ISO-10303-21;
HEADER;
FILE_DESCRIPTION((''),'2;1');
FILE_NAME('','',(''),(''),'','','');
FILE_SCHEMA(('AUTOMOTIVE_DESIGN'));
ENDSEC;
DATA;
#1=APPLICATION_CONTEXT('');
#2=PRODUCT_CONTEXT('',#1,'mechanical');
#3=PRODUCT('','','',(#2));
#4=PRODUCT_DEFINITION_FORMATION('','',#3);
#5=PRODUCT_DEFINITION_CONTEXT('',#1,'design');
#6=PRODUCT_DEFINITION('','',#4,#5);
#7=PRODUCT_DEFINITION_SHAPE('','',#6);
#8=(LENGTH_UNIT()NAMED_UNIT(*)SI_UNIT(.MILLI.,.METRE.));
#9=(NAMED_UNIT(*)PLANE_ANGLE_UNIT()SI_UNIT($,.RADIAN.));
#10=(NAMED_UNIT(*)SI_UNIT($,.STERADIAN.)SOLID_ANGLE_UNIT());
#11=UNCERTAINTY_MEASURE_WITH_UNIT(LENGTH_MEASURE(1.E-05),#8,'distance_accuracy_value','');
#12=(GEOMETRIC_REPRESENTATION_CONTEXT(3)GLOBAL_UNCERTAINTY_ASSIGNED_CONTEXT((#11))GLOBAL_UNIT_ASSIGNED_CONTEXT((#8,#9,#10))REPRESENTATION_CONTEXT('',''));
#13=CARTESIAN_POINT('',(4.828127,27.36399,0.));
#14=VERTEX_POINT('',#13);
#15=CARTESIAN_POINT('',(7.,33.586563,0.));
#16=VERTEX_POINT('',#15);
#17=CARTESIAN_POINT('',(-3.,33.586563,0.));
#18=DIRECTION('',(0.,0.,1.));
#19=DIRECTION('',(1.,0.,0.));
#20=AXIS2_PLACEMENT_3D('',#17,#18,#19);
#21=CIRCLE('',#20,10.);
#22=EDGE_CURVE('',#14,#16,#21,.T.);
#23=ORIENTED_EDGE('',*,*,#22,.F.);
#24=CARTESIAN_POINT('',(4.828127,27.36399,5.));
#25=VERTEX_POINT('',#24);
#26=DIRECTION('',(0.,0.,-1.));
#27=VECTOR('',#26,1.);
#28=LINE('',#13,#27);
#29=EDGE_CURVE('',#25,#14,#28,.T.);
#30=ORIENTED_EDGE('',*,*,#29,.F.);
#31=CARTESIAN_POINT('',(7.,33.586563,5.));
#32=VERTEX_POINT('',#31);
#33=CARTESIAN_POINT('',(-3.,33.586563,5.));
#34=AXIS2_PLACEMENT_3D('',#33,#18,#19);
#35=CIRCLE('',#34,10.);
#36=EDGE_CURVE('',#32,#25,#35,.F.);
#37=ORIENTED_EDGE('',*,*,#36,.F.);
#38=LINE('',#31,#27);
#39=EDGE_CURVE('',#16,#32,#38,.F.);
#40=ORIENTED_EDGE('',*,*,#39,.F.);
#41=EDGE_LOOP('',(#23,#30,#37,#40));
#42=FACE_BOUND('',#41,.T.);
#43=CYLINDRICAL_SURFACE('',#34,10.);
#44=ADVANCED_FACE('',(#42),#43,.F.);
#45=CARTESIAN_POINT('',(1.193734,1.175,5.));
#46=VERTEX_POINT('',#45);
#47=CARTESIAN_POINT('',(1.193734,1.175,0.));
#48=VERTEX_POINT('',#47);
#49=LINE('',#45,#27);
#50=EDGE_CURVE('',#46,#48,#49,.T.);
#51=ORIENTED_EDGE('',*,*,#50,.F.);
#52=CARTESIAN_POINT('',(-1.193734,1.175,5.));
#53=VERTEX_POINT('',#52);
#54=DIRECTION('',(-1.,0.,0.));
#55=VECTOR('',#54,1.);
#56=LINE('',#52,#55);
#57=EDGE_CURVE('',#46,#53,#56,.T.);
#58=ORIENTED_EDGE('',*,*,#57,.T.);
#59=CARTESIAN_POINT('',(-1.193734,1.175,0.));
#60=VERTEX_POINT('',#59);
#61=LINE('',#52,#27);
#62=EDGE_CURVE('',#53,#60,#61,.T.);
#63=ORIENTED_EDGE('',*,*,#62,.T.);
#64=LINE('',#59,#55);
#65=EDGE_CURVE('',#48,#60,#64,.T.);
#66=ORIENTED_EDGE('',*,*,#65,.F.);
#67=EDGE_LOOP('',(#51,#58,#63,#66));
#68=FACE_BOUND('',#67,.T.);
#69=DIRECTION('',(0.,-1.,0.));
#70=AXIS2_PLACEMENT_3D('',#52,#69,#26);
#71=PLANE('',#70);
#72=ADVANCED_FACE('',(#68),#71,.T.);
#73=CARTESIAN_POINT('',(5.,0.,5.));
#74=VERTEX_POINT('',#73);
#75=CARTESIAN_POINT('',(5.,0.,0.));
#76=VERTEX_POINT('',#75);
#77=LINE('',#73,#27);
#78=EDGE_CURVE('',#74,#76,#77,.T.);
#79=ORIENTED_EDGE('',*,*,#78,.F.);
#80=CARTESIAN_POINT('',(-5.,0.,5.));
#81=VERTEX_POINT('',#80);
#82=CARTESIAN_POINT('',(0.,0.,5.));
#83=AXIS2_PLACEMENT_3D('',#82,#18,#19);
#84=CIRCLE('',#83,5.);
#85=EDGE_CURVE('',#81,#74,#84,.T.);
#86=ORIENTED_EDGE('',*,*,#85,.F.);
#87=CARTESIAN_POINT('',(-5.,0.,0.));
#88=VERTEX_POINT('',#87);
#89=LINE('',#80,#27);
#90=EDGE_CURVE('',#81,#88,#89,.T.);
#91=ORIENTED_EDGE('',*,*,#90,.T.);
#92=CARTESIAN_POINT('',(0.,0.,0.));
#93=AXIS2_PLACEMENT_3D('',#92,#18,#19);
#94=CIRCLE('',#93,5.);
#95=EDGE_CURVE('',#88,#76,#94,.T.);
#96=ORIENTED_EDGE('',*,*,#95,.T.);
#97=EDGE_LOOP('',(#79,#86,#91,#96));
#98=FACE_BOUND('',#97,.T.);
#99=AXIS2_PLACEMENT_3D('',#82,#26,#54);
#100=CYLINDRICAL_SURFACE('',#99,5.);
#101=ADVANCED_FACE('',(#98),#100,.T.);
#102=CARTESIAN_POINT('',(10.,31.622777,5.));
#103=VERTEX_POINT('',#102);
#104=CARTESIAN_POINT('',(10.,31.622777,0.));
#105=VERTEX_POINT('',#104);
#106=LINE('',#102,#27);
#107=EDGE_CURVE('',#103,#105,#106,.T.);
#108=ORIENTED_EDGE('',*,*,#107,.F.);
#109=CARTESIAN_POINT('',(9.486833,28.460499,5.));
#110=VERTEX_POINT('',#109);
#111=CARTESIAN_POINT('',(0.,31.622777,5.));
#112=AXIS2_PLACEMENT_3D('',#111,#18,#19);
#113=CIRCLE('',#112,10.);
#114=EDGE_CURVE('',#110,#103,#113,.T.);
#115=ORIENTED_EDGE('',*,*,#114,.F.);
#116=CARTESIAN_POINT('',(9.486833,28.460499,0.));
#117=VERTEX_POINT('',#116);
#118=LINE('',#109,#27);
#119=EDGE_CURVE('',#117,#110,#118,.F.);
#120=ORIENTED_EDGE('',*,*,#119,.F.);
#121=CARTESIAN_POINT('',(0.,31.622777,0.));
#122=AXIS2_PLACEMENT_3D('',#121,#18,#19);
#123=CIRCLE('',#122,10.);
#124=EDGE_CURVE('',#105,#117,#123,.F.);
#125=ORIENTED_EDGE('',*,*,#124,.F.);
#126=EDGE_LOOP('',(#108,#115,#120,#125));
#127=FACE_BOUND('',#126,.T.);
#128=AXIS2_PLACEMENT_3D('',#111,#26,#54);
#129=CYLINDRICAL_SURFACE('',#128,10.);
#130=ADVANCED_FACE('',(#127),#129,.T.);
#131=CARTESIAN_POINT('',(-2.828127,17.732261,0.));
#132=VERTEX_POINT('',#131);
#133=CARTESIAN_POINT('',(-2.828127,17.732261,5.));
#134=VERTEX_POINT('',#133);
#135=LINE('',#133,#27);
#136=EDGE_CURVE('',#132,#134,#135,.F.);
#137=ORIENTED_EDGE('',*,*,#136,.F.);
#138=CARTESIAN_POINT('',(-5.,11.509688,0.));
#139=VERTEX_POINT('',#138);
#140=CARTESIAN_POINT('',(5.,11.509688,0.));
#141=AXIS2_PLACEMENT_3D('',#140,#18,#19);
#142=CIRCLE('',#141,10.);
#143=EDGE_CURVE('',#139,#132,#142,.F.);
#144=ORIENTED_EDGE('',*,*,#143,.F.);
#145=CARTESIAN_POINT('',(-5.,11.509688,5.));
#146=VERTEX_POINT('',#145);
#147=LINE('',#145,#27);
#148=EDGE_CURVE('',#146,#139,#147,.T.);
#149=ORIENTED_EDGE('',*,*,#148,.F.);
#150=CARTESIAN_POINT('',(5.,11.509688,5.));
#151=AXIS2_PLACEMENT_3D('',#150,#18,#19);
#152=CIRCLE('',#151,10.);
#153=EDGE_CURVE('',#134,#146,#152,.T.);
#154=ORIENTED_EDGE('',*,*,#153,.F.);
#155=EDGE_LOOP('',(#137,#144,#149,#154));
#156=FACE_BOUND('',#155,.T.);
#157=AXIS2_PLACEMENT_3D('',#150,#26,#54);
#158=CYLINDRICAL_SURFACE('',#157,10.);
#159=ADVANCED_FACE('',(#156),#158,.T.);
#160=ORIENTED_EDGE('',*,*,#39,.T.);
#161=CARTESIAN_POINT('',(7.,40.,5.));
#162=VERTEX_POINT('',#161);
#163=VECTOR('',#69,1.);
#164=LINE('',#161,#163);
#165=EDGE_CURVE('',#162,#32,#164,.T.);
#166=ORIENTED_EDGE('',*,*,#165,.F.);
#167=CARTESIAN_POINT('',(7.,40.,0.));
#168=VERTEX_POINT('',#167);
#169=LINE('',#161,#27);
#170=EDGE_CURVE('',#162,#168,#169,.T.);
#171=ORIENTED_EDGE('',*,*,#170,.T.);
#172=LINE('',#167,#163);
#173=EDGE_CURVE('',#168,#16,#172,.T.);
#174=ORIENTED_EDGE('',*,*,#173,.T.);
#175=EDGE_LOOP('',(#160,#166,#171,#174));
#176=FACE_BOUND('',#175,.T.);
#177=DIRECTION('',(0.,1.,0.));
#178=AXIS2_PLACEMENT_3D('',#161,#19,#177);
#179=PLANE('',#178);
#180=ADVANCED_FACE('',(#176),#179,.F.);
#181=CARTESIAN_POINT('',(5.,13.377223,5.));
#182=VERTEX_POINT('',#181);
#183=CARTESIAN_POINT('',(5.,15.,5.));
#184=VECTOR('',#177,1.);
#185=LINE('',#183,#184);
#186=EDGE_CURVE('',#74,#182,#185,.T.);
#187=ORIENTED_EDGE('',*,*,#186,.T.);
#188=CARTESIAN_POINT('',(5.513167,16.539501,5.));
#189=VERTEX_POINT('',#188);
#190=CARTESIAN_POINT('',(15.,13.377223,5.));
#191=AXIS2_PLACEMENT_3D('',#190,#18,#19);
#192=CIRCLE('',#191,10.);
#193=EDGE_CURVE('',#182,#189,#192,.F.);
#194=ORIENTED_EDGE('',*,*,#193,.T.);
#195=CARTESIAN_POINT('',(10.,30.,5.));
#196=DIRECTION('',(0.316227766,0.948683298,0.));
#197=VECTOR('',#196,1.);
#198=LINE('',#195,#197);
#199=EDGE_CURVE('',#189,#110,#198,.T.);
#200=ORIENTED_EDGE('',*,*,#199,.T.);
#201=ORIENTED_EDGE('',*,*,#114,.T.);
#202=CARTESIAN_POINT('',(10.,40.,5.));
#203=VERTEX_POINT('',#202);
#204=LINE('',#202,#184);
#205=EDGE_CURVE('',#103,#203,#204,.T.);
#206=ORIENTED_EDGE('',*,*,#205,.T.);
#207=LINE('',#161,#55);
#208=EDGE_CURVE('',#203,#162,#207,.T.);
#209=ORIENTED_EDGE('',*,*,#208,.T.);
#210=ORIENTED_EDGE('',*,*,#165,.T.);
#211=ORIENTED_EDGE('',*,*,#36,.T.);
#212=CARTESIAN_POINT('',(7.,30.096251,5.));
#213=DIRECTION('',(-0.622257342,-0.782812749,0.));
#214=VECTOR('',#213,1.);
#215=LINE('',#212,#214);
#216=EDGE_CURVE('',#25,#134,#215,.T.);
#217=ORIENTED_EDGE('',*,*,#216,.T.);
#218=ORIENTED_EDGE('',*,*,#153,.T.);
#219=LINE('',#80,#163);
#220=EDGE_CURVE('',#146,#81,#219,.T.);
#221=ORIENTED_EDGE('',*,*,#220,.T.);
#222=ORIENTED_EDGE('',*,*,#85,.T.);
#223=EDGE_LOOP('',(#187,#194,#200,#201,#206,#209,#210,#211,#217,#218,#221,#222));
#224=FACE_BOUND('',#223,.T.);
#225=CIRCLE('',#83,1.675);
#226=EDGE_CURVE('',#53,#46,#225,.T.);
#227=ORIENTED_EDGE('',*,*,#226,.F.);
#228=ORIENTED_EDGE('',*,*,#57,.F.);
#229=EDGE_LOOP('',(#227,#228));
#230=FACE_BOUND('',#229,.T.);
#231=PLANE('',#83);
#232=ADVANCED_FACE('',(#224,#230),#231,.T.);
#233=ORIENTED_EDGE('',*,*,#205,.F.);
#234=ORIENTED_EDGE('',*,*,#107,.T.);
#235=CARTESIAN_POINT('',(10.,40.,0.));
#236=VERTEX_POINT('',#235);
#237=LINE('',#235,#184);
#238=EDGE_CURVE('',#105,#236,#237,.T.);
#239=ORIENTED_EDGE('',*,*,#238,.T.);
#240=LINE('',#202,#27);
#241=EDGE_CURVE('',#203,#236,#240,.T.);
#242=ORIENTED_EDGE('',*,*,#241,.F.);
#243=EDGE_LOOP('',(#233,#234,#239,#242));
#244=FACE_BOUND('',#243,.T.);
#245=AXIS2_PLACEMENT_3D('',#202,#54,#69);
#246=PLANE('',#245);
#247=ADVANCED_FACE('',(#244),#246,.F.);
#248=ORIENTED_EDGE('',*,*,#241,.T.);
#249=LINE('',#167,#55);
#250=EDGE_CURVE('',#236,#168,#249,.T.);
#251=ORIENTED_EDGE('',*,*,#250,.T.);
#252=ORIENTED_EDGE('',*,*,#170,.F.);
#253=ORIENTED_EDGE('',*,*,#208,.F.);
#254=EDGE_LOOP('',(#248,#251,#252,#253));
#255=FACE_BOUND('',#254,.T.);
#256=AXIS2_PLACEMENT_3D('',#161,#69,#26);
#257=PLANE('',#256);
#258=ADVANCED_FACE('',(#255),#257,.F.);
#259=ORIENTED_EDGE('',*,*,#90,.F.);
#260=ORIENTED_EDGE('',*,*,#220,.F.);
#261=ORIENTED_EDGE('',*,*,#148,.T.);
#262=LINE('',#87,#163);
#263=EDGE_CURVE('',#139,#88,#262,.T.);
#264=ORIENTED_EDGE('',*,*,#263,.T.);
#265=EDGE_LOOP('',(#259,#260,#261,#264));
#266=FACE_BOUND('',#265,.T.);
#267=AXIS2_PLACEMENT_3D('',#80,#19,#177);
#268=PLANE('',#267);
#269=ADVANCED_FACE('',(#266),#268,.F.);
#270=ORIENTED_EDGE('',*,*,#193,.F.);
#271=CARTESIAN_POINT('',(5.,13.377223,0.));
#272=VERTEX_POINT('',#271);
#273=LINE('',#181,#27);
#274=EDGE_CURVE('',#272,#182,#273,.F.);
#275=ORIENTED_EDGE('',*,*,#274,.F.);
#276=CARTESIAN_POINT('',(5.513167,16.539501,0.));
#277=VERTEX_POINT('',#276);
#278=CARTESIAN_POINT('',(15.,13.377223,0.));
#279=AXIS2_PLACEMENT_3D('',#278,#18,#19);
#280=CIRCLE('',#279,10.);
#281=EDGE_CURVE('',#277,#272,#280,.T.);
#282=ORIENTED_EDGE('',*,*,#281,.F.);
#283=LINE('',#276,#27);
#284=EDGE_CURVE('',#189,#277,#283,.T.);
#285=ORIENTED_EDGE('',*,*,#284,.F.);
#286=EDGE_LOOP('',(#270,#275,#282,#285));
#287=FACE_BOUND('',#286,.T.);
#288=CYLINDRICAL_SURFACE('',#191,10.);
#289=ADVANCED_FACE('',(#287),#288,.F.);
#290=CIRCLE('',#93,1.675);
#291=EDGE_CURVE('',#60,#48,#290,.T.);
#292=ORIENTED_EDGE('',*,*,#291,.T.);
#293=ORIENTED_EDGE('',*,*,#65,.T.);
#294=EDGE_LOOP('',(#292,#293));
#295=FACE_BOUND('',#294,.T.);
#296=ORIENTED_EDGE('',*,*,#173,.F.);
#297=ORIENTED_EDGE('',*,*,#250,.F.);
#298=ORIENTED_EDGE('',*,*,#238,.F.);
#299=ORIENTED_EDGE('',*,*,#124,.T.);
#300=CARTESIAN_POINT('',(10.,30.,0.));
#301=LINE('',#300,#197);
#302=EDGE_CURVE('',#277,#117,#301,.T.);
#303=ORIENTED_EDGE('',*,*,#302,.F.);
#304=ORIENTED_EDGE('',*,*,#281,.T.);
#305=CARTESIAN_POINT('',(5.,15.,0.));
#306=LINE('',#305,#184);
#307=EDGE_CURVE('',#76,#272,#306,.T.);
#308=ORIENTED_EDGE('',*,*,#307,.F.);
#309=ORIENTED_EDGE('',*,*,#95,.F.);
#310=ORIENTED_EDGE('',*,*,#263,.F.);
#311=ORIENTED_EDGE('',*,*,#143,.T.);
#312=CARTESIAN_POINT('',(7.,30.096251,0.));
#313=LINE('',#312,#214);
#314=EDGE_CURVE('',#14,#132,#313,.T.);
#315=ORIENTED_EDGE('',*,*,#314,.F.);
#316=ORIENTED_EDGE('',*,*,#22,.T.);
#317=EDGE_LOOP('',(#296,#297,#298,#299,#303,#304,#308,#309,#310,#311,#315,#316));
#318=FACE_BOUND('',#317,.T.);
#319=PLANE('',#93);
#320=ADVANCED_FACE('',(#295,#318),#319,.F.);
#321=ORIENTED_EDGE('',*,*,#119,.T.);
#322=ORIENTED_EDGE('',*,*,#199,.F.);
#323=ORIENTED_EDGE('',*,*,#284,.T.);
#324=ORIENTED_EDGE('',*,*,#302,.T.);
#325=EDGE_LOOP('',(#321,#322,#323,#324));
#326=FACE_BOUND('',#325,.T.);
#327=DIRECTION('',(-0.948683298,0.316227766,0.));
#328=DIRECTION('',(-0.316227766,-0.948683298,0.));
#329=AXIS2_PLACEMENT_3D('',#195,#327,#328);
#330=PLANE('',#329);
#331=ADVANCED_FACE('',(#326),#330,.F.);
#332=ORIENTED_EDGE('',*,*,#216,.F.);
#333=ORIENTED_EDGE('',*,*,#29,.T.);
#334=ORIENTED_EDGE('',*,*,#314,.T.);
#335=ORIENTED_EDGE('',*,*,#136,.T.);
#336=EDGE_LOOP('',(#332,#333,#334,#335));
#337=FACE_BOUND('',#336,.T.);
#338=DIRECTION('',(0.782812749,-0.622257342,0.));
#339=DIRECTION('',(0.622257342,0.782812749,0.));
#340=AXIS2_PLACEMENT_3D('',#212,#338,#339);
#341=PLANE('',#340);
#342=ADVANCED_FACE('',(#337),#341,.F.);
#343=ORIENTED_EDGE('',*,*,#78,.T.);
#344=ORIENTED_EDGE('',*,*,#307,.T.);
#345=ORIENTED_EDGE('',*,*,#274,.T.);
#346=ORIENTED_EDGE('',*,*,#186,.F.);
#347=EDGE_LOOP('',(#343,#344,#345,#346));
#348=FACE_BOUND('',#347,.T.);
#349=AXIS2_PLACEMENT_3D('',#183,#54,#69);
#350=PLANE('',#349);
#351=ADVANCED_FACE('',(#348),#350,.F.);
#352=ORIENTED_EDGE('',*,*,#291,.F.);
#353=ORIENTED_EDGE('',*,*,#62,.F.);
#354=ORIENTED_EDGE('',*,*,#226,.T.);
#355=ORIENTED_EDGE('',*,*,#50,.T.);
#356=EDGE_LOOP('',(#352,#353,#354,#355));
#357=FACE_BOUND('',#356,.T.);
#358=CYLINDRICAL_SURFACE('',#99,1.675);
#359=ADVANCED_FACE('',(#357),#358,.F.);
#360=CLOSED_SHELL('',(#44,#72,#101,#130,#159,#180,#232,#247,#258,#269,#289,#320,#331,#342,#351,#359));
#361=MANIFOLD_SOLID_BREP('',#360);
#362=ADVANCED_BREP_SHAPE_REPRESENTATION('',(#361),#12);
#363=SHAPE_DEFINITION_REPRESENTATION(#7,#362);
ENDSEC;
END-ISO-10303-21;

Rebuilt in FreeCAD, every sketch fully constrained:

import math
import FreeCAD as App
import Part
import Sketcher
Q = App.Units.Quantity


def edges_at(feature, points):
    """Names of the edges that pass closest to the given points."""
    edges = feature.Shape.Edges
    near = lambda p: min(range(len(edges)), key=lambda i: edges[i].distToShape(Part.Vertex(*p))[0])
    return sorted({f"Edge{near(p) + 1}" for p in points})

doc = App.newDocument("Part")
body = doc.addObject("PartDesign::Body", "Body")

sketch1 = body.newObject("Sketcher::SketchObject", "Sketch")
sketch1.AttachmentSupport = (doc.getObject("XY_Plane"), [""])
sketch1.MapMode = "FlatFace"
sketch1.addGeometry([
    Part.LineSegment(App.Vector(-5, 15, 0), App.Vector(-5, 0, 0)),
    Part.ArcOfCircle(Part.Circle(App.Vector(0, 0, 0), App.Vector(0, 0, 1), 5), math.radians(180), math.radians(360)),
    Part.LineSegment(App.Vector(5, 0, 0), App.Vector(5, 15, 0)),
    Part.LineSegment(App.Vector(5, 15, 0), App.Vector(10, 30, 0)),
    Part.LineSegment(App.Vector(10, 30, 0), App.Vector(10, 40, 0)),
    Part.LineSegment(App.Vector(10, 40, 0), App.Vector(7, 40, 0)),
    Part.LineSegment(App.Vector(7, 40, 0), App.Vector(7, 30.096251, 0)),
    Part.LineSegment(App.Vector(7, 30.096251, 0), App.Vector(-5, 15, 0)),
    Part.LineSegment(App.Vector(-1.193734, 1.175, 0), App.Vector(1.193734, 1.175, 0)),
    Part.ArcOfCircle(Part.Circle(App.Vector(0, 0, 0), App.Vector(0, 0, 1), 1.675), math.radians(135.453127), math.radians(404.546873)),
], False)
sketch1.addConstraint([
    Sketcher.Constraint("Tangent", 0, 2, 1, 1),
    Sketcher.Constraint("Tangent", 1, 2, 2, 1),
    Sketcher.Constraint("Coincident", 2, 2, 3, 1),
    Sketcher.Constraint("Coincident", 3, 2, 4, 1),
    Sketcher.Constraint("Coincident", 4, 2, 5, 1),
    Sketcher.Constraint("Coincident", 5, 2, 6, 1),
    Sketcher.Constraint("Coincident", 6, 2, 7, 1),
    Sketcher.Constraint("Coincident", 7, 2, 0, 1),
    Sketcher.Constraint("Coincident", 8, 1, 9, 1),
    Sketcher.Constraint("Coincident", 9, 2, 8, 2),
    Sketcher.Constraint("Vertical", 0),
    Sketcher.Constraint("Vertical", 2),
    Sketcher.Constraint("Vertical", 4),
    Sketcher.Constraint("Horizontal", 5),
    Sketcher.Constraint("Vertical", 6),
    Sketcher.Constraint("Horizontal", 8),
    Sketcher.Constraint("Coincident", 1, 3, -1, 1),
    Sketcher.Constraint("Coincident", 9, 3, -1, 1),
    Sketcher.Constraint("Horizontal", 2, 2, 7, 2),
    Sketcher.Constraint("Radius", 1, Q("5 mm")),
    Sketcher.Constraint("DistanceX", 5, 2, 5, 1, Q("3 mm")),
    Sketcher.Constraint("DistanceY", 0, 2, 0, 1, Q("15 mm")),
    Sketcher.Constraint("DistanceY", 4, 1, 4, 2, Q("10 mm")),
    Sketcher.Constraint("DistanceX", -1, 1, 3, 2, Q("10 mm")),
    Sketcher.Constraint("DistanceY", -1, 1, 3, 2, Q("30 mm")),
    Sketcher.Constraint("Radius", 9, Q("1.675 mm")),
    Sketcher.Constraint("DistanceY", -1, 1, 8, 1, Q("1.175 mm")),
    Sketcher.Constraint("DistanceY", 6, 2, 6, 1, Q("9.903749 mm")),
])
pad1 = body.newObject("PartDesign::Pad", "Pad")
pad1.Profile = sketch1
pad1.Length = 5
doc.recompute()

fillet = body.newObject("PartDesign::Fillet", "Fillet")
fillet.Base = (pad1, edges_at(pad1, [(-5, 15, 2.5), (10, 30, 2.5)]))
fillet.Radius = 10
doc.recompute()

fillet2 = body.newObject("PartDesign::Fillet", "Fillet001")
fillet2.Base = (fillet, edges_at(fillet, [(7, 30.096, 2.5), (5, 15, 2.5)]))
fillet2.Radius = 10

doc.recompute()
